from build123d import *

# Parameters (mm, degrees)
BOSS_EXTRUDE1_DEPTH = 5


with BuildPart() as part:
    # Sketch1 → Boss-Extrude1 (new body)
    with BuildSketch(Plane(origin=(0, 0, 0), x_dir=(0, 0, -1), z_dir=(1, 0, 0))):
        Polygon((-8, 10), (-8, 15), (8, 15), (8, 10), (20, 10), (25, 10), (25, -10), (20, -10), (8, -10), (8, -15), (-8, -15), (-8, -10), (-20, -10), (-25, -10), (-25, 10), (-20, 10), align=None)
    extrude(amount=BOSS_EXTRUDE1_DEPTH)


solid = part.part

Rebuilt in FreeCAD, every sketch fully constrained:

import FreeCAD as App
import Part
import Sketcher
from FreeCAD import Vector
Q = App.Units.Quantity

doc = App.newDocument("Part")
params = doc.addObject("Spreadsheet::Sheet", "Params")
for row, (alias, value) in enumerate([
    ("sketch1_width", "5 mm"),
    ("sketch1_width2", "20 mm"),
    ("sketch1_height", "17 mm"),
    ("sketch1_height2", "16 mm"),
    ("pad1_length", "5 mm"),
], start=1):
    params.set(f"A{row}", alias)
    params.set(f"B{row}", "=" + value)
    params.setAlias(f"B{row}", alias)

body = doc.addObject("PartDesign::Body", "Body")

# Sketch on YZ plane
sketch1 = body.newObject("Sketcher::SketchObject", "Sketch")
sketch1.AttachmentSupport = (doc.getObject("YZ_Plane"), [""])
sketch1.MapMode = "FlatFace"
sketch1.addGeometry([
    Part.LineSegment(Vector(15, 8, 0), Vector(10, 8, 0)),  # 0
    Part.LineSegment(Vector(10, 8, 0), Vector(10, 25, 0)),  # 1
    Part.LineSegment(Vector(10, 25, 0), Vector(-10, 25, 0)),  # 2
    Part.LineSegment(Vector(-10, 25, 0), Vector(-10, 8, 0)),  # 3
    Part.LineSegment(Vector(-10, 8, 0), Vector(-15, 8, 0)),  # 4
    Part.LineSegment(Vector(-15, 8, 0), Vector(-15, -8, 0)),  # 5
    Part.LineSegment(Vector(-15, -8, 0), Vector(-10, -8, 0)),  # 6
    Part.LineSegment(Vector(-10, -8, 0), Vector(-10, -25, 0)),  # 7
    Part.LineSegment(Vector(-10, -25, 0), Vector(10, -25, 0)),  # 8
    Part.LineSegment(Vector(10, -25, 0), Vector(10, -8, 0)),  # 9
    Part.LineSegment(Vector(10, -8, 0), Vector(15, -8, 0)),  # 10
    Part.LineSegment(Vector(15, -8, 0), Vector(15, 8, 0)),  # 11
], False)
sketch1.addConstraint([
    Sketcher.Constraint("Coincident", 0, 2, 1, 1),
    Sketcher.Constraint("Coincident", 1, 2, 2, 1),
    Sketcher.Constraint("Coincident", 2, 2, 3, 1),
    Sketcher.Constraint("Coincident", 3, 2, 4, 1),
    Sketcher.Constraint("Coincident", 4, 2, 5, 1),
    Sketcher.Constraint("Coincident", 5, 2, 6, 1),
    Sketcher.Constraint("Coincident", 6, 2, 7, 1),
    Sketcher.Constraint("Coincident", 7, 2, 8, 1),
    Sketcher.Constraint("Coincident", 8, 2, 9, 1),
    Sketcher.Constraint("Coincident", 9, 2, 10, 1),
    Sketcher.Constraint("Coincident", 10, 2, 11, 1),
    Sketcher.Constraint("Coincident", 11, 2, 0, 1),
    Sketcher.Constraint("Horizontal", 0),
    Sketcher.Constraint("Vertical", 1),
    Sketcher.Constraint("Horizontal", 2),
    Sketcher.Constraint("Vertical", 3),
    Sketcher.Constraint("Horizontal", 4),
    Sketcher.Constraint("Vertical", 5),
    Sketcher.Constraint("Horizontal", 6),
    Sketcher.Constraint("Vertical", 7),
    Sketcher.Constraint("Horizontal", 8),
    Sketcher.Constraint("Vertical", 9),
    Sketcher.Constraint("Horizontal", 10),
    Sketcher.Constraint("Vertical", 11),
    Sketcher.Constraint("Symmetric", 0, 2, 6, 2, -1, 1),
    Sketcher.Constraint("Symmetric", 2, 2, 8, 2, -1, 1),
    Sketcher.Constraint("Symmetric", 4, 2, 10, 2, -1, 1),
    Sketcher.Constraint("Symmetric", 0, 2, 3, 2, -2),
    Sketcher.Constraint("DistanceX", 0, 2, 0, 1, Q("5 mm")),
    Sketcher.Constraint("DistanceX", 2, 2, 2, 1, Q("20 mm")),
    Sketcher.Constraint("DistanceY", 1, 1, 1, 2, Q("17 mm")),
    Sketcher.Constraint("DistanceY", 5, 2, 5, 1, Q("16 mm")),
])
sketch1.setExpression("Constraints[28]", "Params.sketch1_width")
sketch1.setExpression("Constraints[29]", "Params.sketch1_width2")
sketch1.setExpression("Constraints[30]", "Params.sketch1_height")
sketch1.setExpression("Constraints[31]", "Params.sketch1_height2")
pad1 = body.newObject("PartDesign::Pad", "Pad")
pad1.Profile = sketch1
pad1.setExpression("Length", "Params.pad1_length")

doc.recompute()
